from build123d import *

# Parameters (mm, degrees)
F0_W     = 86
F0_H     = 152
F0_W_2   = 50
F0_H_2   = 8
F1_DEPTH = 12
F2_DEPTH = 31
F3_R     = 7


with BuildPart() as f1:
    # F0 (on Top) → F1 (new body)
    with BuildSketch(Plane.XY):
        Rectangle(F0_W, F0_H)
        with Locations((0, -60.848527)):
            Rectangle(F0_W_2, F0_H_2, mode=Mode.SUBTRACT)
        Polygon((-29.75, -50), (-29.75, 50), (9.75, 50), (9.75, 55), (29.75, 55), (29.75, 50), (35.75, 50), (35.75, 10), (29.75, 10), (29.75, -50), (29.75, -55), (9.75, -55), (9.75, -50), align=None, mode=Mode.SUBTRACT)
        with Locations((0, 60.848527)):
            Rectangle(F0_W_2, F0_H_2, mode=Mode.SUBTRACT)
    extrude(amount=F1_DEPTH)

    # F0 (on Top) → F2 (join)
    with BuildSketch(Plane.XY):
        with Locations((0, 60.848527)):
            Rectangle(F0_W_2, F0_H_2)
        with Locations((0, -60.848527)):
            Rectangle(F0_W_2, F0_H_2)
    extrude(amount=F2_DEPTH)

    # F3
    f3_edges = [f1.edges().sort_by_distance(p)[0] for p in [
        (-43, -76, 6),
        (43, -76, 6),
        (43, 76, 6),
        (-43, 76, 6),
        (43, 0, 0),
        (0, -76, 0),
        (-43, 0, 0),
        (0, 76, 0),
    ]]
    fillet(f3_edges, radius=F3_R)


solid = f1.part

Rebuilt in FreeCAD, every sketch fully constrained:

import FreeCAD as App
import Part
import Sketcher

V = App.Vector


def edges_at(feature, points):
    """Names of the edges that pass closest to the given points."""
    edges = feature.Shape.Edges
    near = lambda p: min(range(len(edges)), key=lambda i: edges[i].distToShape(Part.Vertex(*p))[0])
    return sorted({f"Edge{near(p) + 1}" for p in points})

doc = App.newDocument("Part")
params = doc.addObject("Spreadsheet::Sheet", "Params")
for row, (alias, value) in enumerate([
    ("sketch1_width", "86 mm"),
    ("sketch1_width2", "50 mm"),
    ("sketch1_width3", "20 mm"),
    ("sketch1_width4", "6 mm"),
    ("sketch1_height", "152 mm"),
    ("pad1_length", "12 mm"),
    ("sketch2_width", "50 mm"),
    ("sketch2_height", "8 mm"),
    ("pad2_length", "31 mm"),
    ("fillet_radius", "7 mm"),
], start=1):
    params.set(f"A{row}", alias)
    params.set(f"B{row}", "=" + value)
    params.setAlias(f"B{row}", alias)

body = doc.addObject("PartDesign::Body", "Body")

# Sketch on XY plane
sketch1 = body.newObject("Sketcher::SketchObject", "Sketch")
sketch1.AttachmentSupport = (doc.getObject("XY_Plane"), [""])
sketch1.MapMode = "FlatFace"
sketch1.addGeometry(Part.LineSegment(V(-43, 76, 0), V(-43, -76, 0)), False)
sketch1.addGeometry(Part.LineSegment(V(-43, -76, 0), V(43, -76, 0)), False)
sketch1.addGeometry(Part.LineSegment(V(43, -76, 0), V(43, 76, 0)), False)
sketch1.addGeometry(Part.LineSegment(V(43, 76, 0), V(-43, 76, 0)), False)
sketch1.addGeometry(Part.LineSegment(V(25, -64.848527, 0), V(-25, -64.848527, 0)), False)
sketch1.addGeometry(Part.LineSegment(V(-25, -64.848527, 0), V(-25, -56.848527, 0)), False)
sketch1.addGeometry(Part.LineSegment(V(-25, -56.848527, 0), V(25, -56.848527, 0)), False)
sketch1.addGeometry(Part.LineSegment(V(25, -56.848527, 0), V(25, -64.848527, 0)), False)
sketch1.addGeometry(Part.LineSegment(V(25, 56.848527, 0), V(-25, 56.848527, 0)), False)
sketch1.addGeometry(Part.LineSegment(V(-25, 56.848527, 0), V(-25, 64.848527, 0)), False)
sketch1.addGeometry(Part.LineSegment(V(-25, 64.848527, 0), V(25, 64.848527, 0)), False)
sketch1.addGeometry(Part.LineSegment(V(25, 64.848527, 0), V(25, 56.848527, 0)), False)
sketch1.addGeometry(Part.LineSegment(V(9.75, -50, 0), V(-29.75, -50, 0)), False)
sketch1.addGeometry(Part.LineSegment(V(-29.75, -50, 0), V(-29.75, 50, 0)), False)
sketch1.addGeometry(Part.LineSegment(V(-29.75, 50, 0), V(9.75, 50, 0)), False)
sketch1.addGeometry(Part.LineSegment(V(9.75, 50, 0), V(9.75, 55, 0)), False)
sketch1.addGeometry(Part.LineSegment(V(9.75, 55, 0), V(29.75, 55, 0)), False)
sketch1.addGeometry(Part.LineSegment(V(29.75, 55, 0), V(29.75, 50, 0)), False)
sketch1.addGeometry(Part.LineSegment(V(29.75, 50, 0), V(35.75, 50, 0)), False)
sketch1.addGeometry(Part.LineSegment(V(35.75, 50, 0), V(35.75, 10, 0)), False)
sketch1.addGeometry(Part.LineSegment(V(35.75, 10, 0), V(29.75, 10, 0)), False)
sketch1.addGeometry(Part.LineSegment(V(29.75, 10, 0), V(29.75, -55, 0)), False)
sketch1.addGeometry(Part.LineSegment(V(29.75, -55, 0), V(9.75, -55, 0)), False)
sketch1.addGeometry(Part.LineSegment(V(9.75, -55, 0), V(9.75, -50, 0)), False)
sketch1.addConstraint(Sketcher.Constraint("Coincident", 0, 2, 1, 1))
sketch1.addConstraint(Sketcher.Constraint("Coincident", 1, 2, 2, 1))
sketch1.addConstraint(Sketcher.Constraint("Coincident", 2, 2, 3, 1))
sketch1.addConstraint(Sketcher.Constraint("Coincident", 3, 2, 0, 1))
sketch1.addConstraint(Sketcher.Constraint("Coincident", 4, 2, 5, 1))
sketch1.addConstraint(Sketcher.Constraint("Coincident", 5, 2, 6, 1))
sketch1.addConstraint(Sketcher.Constraint("Coincident", 6, 2, 7, 1))
sketch1.addConstraint(Sketcher.Constraint("Coincident", 7, 2, 4, 1))
sketch1.addConstraint(Sketcher.Constraint("Coincident", 8, 2, 9, 1))
sketch1.addConstraint(Sketcher.Constraint("Coincident", 9, 2, 10, 1))
sketch1.addConstraint(Sketcher.Constraint("Coincident", 10, 2, 11, 1))
sketch1.addConstraint(Sketcher.Constraint("Coincident", 11, 2, 8, 1))
sketch1.addConstraint(Sketcher.Constraint("Coincident", 12, 2, 13, 1))
sketch1.addConstraint(Sketcher.Constraint("Coincident", 13, 2, 14, 1))
sketch1.addConstraint(Sketcher.Constraint("Coincident", 14, 2, 15, 1))
sketch1.addConstraint(Sketcher.Constraint("Coincident", 15, 2, 16, 1))
sketch1.addConstraint(Sketcher.Constraint("Coincident", 16, 2, 17, 1))
sketch1.addConstraint(Sketcher.Constraint("Coincident", 17, 2, 18, 1))
sketch1.addConstraint(Sketcher.Constraint("Coincident", 18, 2, 19, 1))
sketch1.addConstraint(Sketcher.Constraint("Coincident", 19, 2, 20, 1))
sketch1.addConstraint(Sketcher.Constraint("Coincident", 20, 2, 21, 1))
sketch1.addConstraint(Sketcher.Constraint("Coincident", 21, 2, 22, 1))
sketch1.addConstraint(Sketcher.Constraint("Coincident", 22, 2, 23, 1))
sketch1.addConstraint(Sketcher.Constraint("Coincident", 23, 2, 12, 1))
sketch1.addConstraint(Sketcher.Constraint("Vertical", 0))
sketch1.addConstraint(Sketcher.Constraint("Horizontal", 1))
sketch1.addConstraint(Sketcher.Constraint("Vertical", 2))
sketch1.addConstraint(Sketcher.Constraint("Horizontal", 3))
sketch1.addConstraint(Sketcher.Constraint("Horizontal", 4))
sketch1.addConstraint(Sketcher.Constraint("Vertical", 5))
sketch1.addConstraint(Sketcher.Constraint("Horizontal", 6))
sketch1.addConstraint(Sketcher.Constraint("Vertical", 7))
sketch1.addConstraint(Sketcher.Constraint("Horizontal", 8))
sketch1.addConstraint(Sketcher.Constraint("Vertical", 9))
sketch1.addConstraint(Sketcher.Constraint("Horizontal", 10))
sketch1.addConstraint(Sketcher.Constraint("Vertical", 11))
sketch1.addConstraint(Sketcher.Constraint("Horizontal", 12))
sketch1.addConstraint(Sketcher.Constraint("Vertical", 13))
sketch1.addConstraint(Sketcher.Constraint("Horizontal", 14))
sketch1.addConstraint(Sketcher.Constraint("Vertical", 15))
sketch1.addConstraint(Sketcher.Constraint("Horizontal", 16))
sketch1.addConstraint(Sketcher.Constraint("Vertical", 17))
sketch1.addConstraint(Sketcher.Constraint("Horizontal", 18))
sketch1.addConstraint(Sketcher.Constraint("Vertical", 19))
sketch1.addConstraint(Sketcher.Constraint("Horizontal", 20))
sketch1.addConstraint(Sketcher.Constraint("Vertical", 21))
sketch1.addConstraint(Sketcher.Constraint("Horizontal", 22))
sketch1.addConstraint(Sketcher.Constraint("Vertical", 23))
sketch1.addConstraint(Sketcher.Constraint("Symmetric", 0, 2, 2, 2, -1, 1))
sketch1.addConstraint(Sketcher.Constraint("Symmetric", 6, 2, 8, 2, -1, 1))
sketch1.addConstraint(Sketcher.Constraint("Symmetric", 4, 2, 10, 2, -1, 1))
sketch1.addConstraint(Sketcher.Constraint("Symmetric", 12, 2, 17, 2, -1, 1))
sketch1.addConstraint(Sketcher.Constraint("Symmetric", 16, 2, 21, 2, -1))
sketch1.addConstraint(Sketcher.Constraint("Symmetric", 14, 2, 23, 2, -1))
sketch1.addConstraint(Sketcher.Constraint("Vertical", 5, 2, 8, 2))
sketch1.addConstraint(Sketcher.Constraint("DistanceX", 1, 1, 1, 2, 86.0))
sketch1.addConstraint(Sketcher.Constraint("DistanceX", 4, 2, 4, 1, 50.0))
sketch1.addConstraint(Sketcher.Constraint("DistanceX", 16, 1, 16, 2, 20.0))
sketch1.addConstraint(Sketcher.Constraint("DistanceX", 18, 1, 18, 2, 6.0))
sketch1.addConstraint(Sketcher.Constraint("DistanceY", 0, 2, 0, 1, 152.0))
sketch1.addConstraint(Sketcher.Constraint("DistanceY", 5, 1, 5, 2, 8.0))
sketch1.addConstraint(Sketcher.Constraint("DistanceY", 13, 1, 13, 2, 100.0))
sketch1.addConstraint(Sketcher.Constraint("DistanceY", 15, 1, 15, 2, 5.0))
sketch1.addConstraint(Sketcher.Constraint("DistanceY", 19, 2, 19, 1, 40.0))
sketch1.addConstraint(Sketcher.Constraint("DistanceX", 12, 2, 12, 1, 39.5))
sketch1.addConstraint(Sketcher.Constraint("DistanceY", 4, 2, -1, 1, 64.848527))
sketch1.setExpression("Constraints[55]", "Params.sketch1_width")
sketch1.setExpression("Constraints[56]", "Params.sketch1_width2")
sketch1.setExpression("Constraints[57]", "Params.sketch1_width3")
sketch1.setExpression("Constraints[58]", "Params.sketch1_width4")
sketch1.setExpression("Constraints[59]", "Params.sketch1_height")
pad1 = body.newObject("PartDesign::Pad", "Pad")
pad1.Profile = sketch1
pad1.setExpression("Length", "Params.pad1_length")

# Sketch on XY plane
sketch2 = body.newObject("Sketcher::SketchObject", "Sketch001")
sketch2.AttachmentSupport = (doc.getObject("XY_Plane"), [""])
sketch2.MapMode = "FlatFace"
sketch2.addGeometry(Part.LineSegment(V(-25, 64.848527, 0), V(-25, 56.848527, 0)), False)
sketch2.addGeometry(Part.LineSegment(V(-25, 56.848527, 0), V(25, 56.848527, 0)), False)
sketch2.addGeometry(Part.LineSegment(V(25, 56.848527, 0), V(25, 64.848527, 0)), False)
sketch2.addGeometry(Part.LineSegment(V(25, 64.848527, 0), V(-25, 64.848527, 0)), False)
sketch2.addGeometry(Part.LineSegment(V(-25, -56.848527, 0), V(-25, -64.848527, 0)), False)
sketch2.addGeometry(Part.LineSegment(V(-25, -64.848527, 0), V(25, -64.848527, 0)), False)
sketch2.addGeometry(Part.LineSegment(V(25, -64.848527, 0), V(25, -56.848527, 0)), False)
sketch2.addGeometry(Part.LineSegment(V(25, -56.848527, 0), V(-25, -56.848527, 0)), False)
sketch2.addConstraint(Sketcher.Constraint("Coincident", 0, 2, 1, 1))
sketch2.addConstraint(Sketcher.Constraint("Coincident", 1, 2, 2, 1))
sketch2.addConstraint(Sketcher.Constraint("Coincident", 2, 2, 3, 1))
sketch2.addConstraint(Sketcher.Constraint("Coincident", 3, 2, 0, 1))
sketch2.addConstraint(Sketcher.Constraint("Coincident", 4, 2, 5, 1))
sketch2.addConstraint(Sketcher.Constraint("Coincident", 5, 2, 6, 1))
sketch2.addConstraint(Sketcher.Constraint("Coincident", 6, 2, 7, 1))
sketch2.addConstraint(Sketcher.Constraint("Coincident", 7, 2, 4, 1))
sketch2.addConstraint(Sketcher.Constraint("Vertical", 0))
sketch2.addConstraint(Sketcher.Constraint("Horizontal", 1))
sketch2.addConstraint(Sketcher.Constraint("Vertical", 2))
sketch2.addConstraint(Sketcher.Constraint("Horizontal", 3))
sketch2.addConstraint(Sketcher.Constraint("Vertical", 4))
sketch2.addConstraint(Sketcher.Constraint("Horizontal", 5))
sketch2.addConstraint(Sketcher.Constraint("Vertical", 6))
sketch2.addConstraint(Sketcher.Constraint("Horizontal", 7))
sketch2.addConstraint(Sketcher.Constraint("Symmetric", 2, 2, 4, 2, -1, 1))
sketch2.addConstraint(Sketcher.Constraint("Symmetric", 0, 2, 6, 2, -1, 1))
sketch2.addConstraint(Sketcher.Constraint("Vertical", 3, 2, 4, 2))
sketch2.addConstraint(Sketcher.Constraint("DistanceX", 1, 1, 1, 2, 50.0))
sketch2.addConstraint(Sketcher.Constraint("DistanceY", 0, 2, 0, 1, 8.0))
sketch2.addConstraint(Sketcher.Constraint("DistanceY", -1, 1, 0, 2, 56.848527))
sketch2.setExpression("Constraints[19]", "Params.sketch2_width")
sketch2.setExpression("Constraints[20]", "Params.sketch2_height")
pad2 = body.newObject("PartDesign::Pad", "Pad001")
pad2.Profile = sketch2
pad2.setExpression("Length", "Params.pad2_length")
doc.recompute()

fillet = body.newObject("PartDesign::Fillet", "Fillet")
fillet.Base = (pad2, edges_at(pad2, [
    (-43, -76, 6),
    (43, -76, 6),
    (43, 76, 6),
    (-43, 76, 6),
    (43, 0, 0),
    (0, -76, 0),
    (-43, 0, 0),
    (0, 76, 0),
]))
fillet.setExpression("Radius", "Params.fillet_radius")

doc.recompute()
